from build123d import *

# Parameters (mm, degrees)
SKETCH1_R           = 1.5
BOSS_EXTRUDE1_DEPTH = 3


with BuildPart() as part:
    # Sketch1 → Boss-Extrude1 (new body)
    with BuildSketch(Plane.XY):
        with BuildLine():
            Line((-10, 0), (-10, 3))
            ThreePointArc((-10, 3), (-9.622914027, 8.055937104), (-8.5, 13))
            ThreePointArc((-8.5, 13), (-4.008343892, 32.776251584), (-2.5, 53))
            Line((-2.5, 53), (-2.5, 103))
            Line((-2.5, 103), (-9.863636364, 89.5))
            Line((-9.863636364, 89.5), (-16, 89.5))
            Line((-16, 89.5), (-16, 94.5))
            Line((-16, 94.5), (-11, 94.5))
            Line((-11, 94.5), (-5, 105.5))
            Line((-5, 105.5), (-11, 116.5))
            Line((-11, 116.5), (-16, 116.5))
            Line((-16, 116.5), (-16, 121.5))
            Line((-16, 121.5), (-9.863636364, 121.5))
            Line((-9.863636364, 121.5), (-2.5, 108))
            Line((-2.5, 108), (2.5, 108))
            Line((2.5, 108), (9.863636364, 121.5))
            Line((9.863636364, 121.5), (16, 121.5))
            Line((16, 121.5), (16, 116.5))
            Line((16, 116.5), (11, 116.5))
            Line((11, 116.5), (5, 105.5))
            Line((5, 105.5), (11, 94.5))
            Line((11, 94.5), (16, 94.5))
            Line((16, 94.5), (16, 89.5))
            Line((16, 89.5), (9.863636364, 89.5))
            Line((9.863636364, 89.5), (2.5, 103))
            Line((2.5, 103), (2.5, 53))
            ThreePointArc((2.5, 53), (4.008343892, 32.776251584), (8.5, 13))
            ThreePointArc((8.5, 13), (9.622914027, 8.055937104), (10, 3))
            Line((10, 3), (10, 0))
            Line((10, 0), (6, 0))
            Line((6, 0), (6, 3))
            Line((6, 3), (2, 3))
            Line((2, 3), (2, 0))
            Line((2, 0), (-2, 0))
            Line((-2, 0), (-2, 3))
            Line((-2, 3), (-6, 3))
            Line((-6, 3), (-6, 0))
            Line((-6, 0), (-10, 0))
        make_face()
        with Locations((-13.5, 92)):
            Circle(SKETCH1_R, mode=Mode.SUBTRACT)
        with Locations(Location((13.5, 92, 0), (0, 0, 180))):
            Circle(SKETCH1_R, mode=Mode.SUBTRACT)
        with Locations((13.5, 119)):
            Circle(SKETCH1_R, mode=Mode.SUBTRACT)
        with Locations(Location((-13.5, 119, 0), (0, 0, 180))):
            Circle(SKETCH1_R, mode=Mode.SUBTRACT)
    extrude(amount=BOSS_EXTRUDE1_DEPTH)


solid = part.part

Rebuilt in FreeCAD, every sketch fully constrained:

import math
import FreeCAD as App
import Part
import Sketcher
from FreeCAD import Vector
Q = App.Units.Quantity

doc = App.newDocument("Part")
params = doc.addObject("Spreadsheet::Sheet", "Params")
for row, (alias, value) in enumerate([
    ("sketch1_diameter", "3 mm"),
    ("sketch1_width", "4 mm"),
    ("sketch1_width2", "5 mm"),
    ("sketch1_height", "3 mm"),
    ("sketch1_height2", "50 mm"),
    ("pad1_length", "3 mm"),
], start=1):
    params.set(f"A{row}", alias)
    params.set(f"B{row}", "=" + value)
    params.setAlias(f"B{row}", alias)

body = doc.addObject("PartDesign::Body", "Body")

sketch1 = doc.addObject("Sketcher::SketchObject", "Sketch")
body.addObject(sketch1)
sketch1.AttachmentSupport = (doc.XY_Plane, [""])
sketch1.MapMode = "FlatFace"
sketch1.addGeometry([
    Part.LineSegment(Vector(-10, 3, 0), Vector(-10, 0, 0)),
    Part.LineSegment(Vector(-10, 0, 0), Vector(-6, 0, 0)),
    Part.LineSegment(Vector(-6, 0, 0), Vector(-6, 3, 0)),
    Part.LineSegment(Vector(-6, 3, 0), Vector(-2, 3, 0)),
    Part.LineSegment(Vector(-2, 3, 0), Vector(-2, 0, 0)),
    Part.LineSegment(Vector(-2, 0, 0), Vector(2, 0, 0)),
    Part.LineSegment(Vector(2, 0, 0), Vector(2, 3, 0)),
    Part.LineSegment(Vector(2, 3, 0), Vector(6, 3, 0)),
    Part.LineSegment(Vector(6, 3, 0), Vector(6, 0, 0)),
    Part.LineSegment(Vector(6, 0, 0), Vector(10, 0, 0)),
    Part.LineSegment(Vector(10, 0, 0), Vector(10, 3, 0)),
    Part.ArcOfCircle(Part.Circle(Vector(-24.083333, 3, 0), Vector(0, 0, 1), 34.083333), math.radians(0), math.radians(17.061531)),
    Part.ArcOfCircle(Part.Circle(Vector(138.833333, 53, 0), Vector(0, 0, 1), 136.333333), math.radians(180), math.radians(197.061531)),
    Part.LineSegment(Vector(2.5, 53, 0), Vector(2.5, 103, 0)),
    Part.LineSegment(Vector(2.5, 103, 0), Vector(9.863636, 89.5, 0)),
    Part.LineSegment(Vector(9.863636, 89.5, 0), Vector(16, 89.5, 0)),
    Part.LineSegment(Vector(16, 89.5, 0), Vector(16, 94.5, 0)),
    Part.LineSegment(Vector(16, 94.5, 0), Vector(11, 94.5, 0)),
    Part.LineSegment(Vector(11, 94.5, 0), Vector(5, 105.5, 0)),
    Part.LineSegment(Vector(5, 105.5, 0), Vector(11, 116.5, 0)),
    Part.LineSegment(Vector(11, 116.5, 0), Vector(16, 116.5, 0)),
    Part.LineSegment(Vector(16, 116.5, 0), Vector(16, 121.5, 0)),
    Part.LineSegment(Vector(16, 121.5, 0), Vector(9.863636, 121.5, 0)),
    Part.LineSegment(Vector(9.863636, 121.5, 0), Vector(2.5, 108, 0)),
    Part.LineSegment(Vector(2.5, 108, 0), Vector(-2.5, 108, 0)),
    Part.LineSegment(Vector(-2.5, 108, 0), Vector(-9.863636, 121.5, 0)),
    Part.LineSegment(Vector(-9.863636, 121.5, 0), Vector(-16, 121.5, 0)),
    Part.LineSegment(Vector(-16, 121.5, 0), Vector(-16, 116.5, 0)),
    Part.LineSegment(Vector(-16, 116.5, 0), Vector(-11, 116.5, 0)),
    Part.LineSegment(Vector(-11, 116.5, 0), Vector(-5, 105.5, 0)),
    Part.LineSegment(Vector(-5, 105.5, 0), Vector(-11, 94.5, 0)),
    Part.LineSegment(Vector(-11, 94.5, 0), Vector(-16, 94.5, 0)),
    Part.LineSegment(Vector(-16, 94.5, 0), Vector(-16, 89.5, 0)),
    Part.LineSegment(Vector(-16, 89.5, 0), Vector(-9.863636, 89.5, 0)),
    Part.LineSegment(Vector(-9.863636, 89.5, 0), Vector(-2.5, 103, 0)),
    Part.LineSegment(Vector(-2.5, 103, 0), Vector(-2.5, 53, 0)),
    Part.ArcOfCircle(Part.Circle(Vector(-138.833333, 53, 0), Vector(0, 0, 1), 136.333333), math.radians(-17.061531), math.radians(0)),
    Part.ArcOfCircle(Part.Circle(Vector(24.083333, 3, 0), Vector(0, 0, 1), 34.083333), math.radians(162.938469), math.radians(180)),
    Part.Circle(Vector(13.5, 92, 0), Vector(0, 0, 1), 1.5),
    Part.Circle(Vector(-13.5, 92, 0), Vector(0, 0, 1), 1.5),
    Part.Circle(Vector(13.5, 119, 0), Vector(0, 0, 1), 1.5),
    Part.Circle(Vector(-13.5, 119, 0), Vector(0, 0, 1), 1.5),
], False)
sketch1.addConstraint([
    Sketcher.Constraint("Coincident", 0, 2, 1, 1),
    Sketcher.Constraint("Coincident", 1, 2, 2, 1),
    Sketcher.Constraint("Coincident", 2, 2, 3, 1),
    Sketcher.Constraint("Coincident", 3, 2, 4, 1),
    Sketcher.Constraint("Coincident", 4, 2, 5, 1),
    Sketcher.Constraint("Coincident", 5, 2, 6, 1),
    Sketcher.Constraint("Coincident", 6, 2, 7, 1),
    Sketcher.Constraint("Coincident", 7, 2, 8, 1),
    Sketcher.Constraint("Coincident", 8, 2, 9, 1),
    Sketcher.Constraint("Coincident", 9, 2, 10, 1),
    Sketcher.Constraint("Tangent", 10, 2, 11, 1),
    Sketcher.Constraint("Tangent", 11, 2, 12, 2),
    Sketcher.Constraint("Tangent", 12, 1, 13, 1),
    Sketcher.Constraint("Coincident", 13, 2, 14, 1),
    Sketcher.Constraint("Coincident", 14, 2, 15, 1),
    Sketcher.Constraint("Coincident", 15, 2, 16, 1),
    Sketcher.Constraint("Coincident", 16, 2, 17, 1),
    Sketcher.Constraint("Coincident", 17, 2, 18, 1),
    Sketcher.Constraint("Coincident", 18, 2, 19, 1),
    Sketcher.Constraint("Coincident", 19, 2, 20, 1),
    Sketcher.Constraint("Coincident", 20, 2, 21, 1),
    Sketcher.Constraint("Coincident", 21, 2, 22, 1),
    Sketcher.Constraint("Coincident", 22, 2, 23, 1),
    Sketcher.Constraint("Coincident", 23, 2, 24, 1),
    Sketcher.Constraint("Coincident", 24, 2, 25, 1),
    Sketcher.Constraint("Coincident", 25, 2, 26, 1),
    Sketcher.Constraint("Coincident", 26, 2, 27, 1),
    Sketcher.Constraint("Coincident", 27, 2, 28, 1),
    Sketcher.Constraint("Coincident", 28, 2, 29, 1),
    Sketcher.Constraint("Coincident", 29, 2, 30, 1),
    Sketcher.Constraint("Coincident", 30, 2, 31, 1),
    Sketcher.Constraint("Coincident", 31, 2, 32, 1),
    Sketcher.Constraint("Coincident", 32, 2, 33, 1),
    Sketcher.Constraint("Coincident", 33, 2, 34, 1),
    Sketcher.Constraint("Coincident", 34, 2, 35, 1),
    Sketcher.Constraint("Tangent", 35, 2, 36, 2),
    Sketcher.Constraint("Tangent", 36, 1, 37, 1),
    Sketcher.Constraint("Tangent", 37, 2, 0, 1),
    Sketcher.Constraint("Vertical", 0),
    Sketcher.Constraint("Horizontal", 1),
    Sketcher.Constraint("Vertical", 2),
    Sketcher.Constraint("Horizontal", 3),
    Sketcher.Constraint("Vertical", 4),
    Sketcher.Constraint("Horizontal", 5),
    Sketcher.Constraint("Vertical", 6),
    Sketcher.Constraint("Horizontal", 7),
    Sketcher.Constraint("Vertical", 8),
    Sketcher.Constraint("Horizontal", 9),
    Sketcher.Constraint("Vertical", 10),
    Sketcher.Constraint("Vertical", 13),
    Sketcher.Constraint("Horizontal", 15),
    Sketcher.Constraint("Vertical", 16),
    Sketcher.Constraint("Horizontal", 17),
    Sketcher.Constraint("Horizontal", 20),
    Sketcher.Constraint("Vertical", 21),
    Sketcher.Constraint("Horizontal", 22),
    Sketcher.Constraint("Horizontal", 24),
    Sketcher.Constraint("Horizontal", 26),
    Sketcher.Constraint("Vertical", 27),
    Sketcher.Constraint("Horizontal", 28),
    Sketcher.Constraint("Horizontal", 31),
    Sketcher.Constraint("Vertical", 32),
    Sketcher.Constraint("Horizontal", 33),
    Sketcher.Constraint("Vertical", 35),
    Sketcher.Constraint("Equal", 12, 36),
    Sketcher.Constraint("Equal", 11, 37),
    Sketcher.Constraint("Equal", 38, 39),
    Sketcher.Constraint("Equal", 39, 40),
    Sketcher.Constraint("Equal", 40, 41),
    Sketcher.Constraint("Symmetric", 4, 2, 5, 2, -1, 1),
    Sketcher.Constraint("Symmetric", 1, 2, 8, 2, -1, 1),
    Sketcher.Constraint("Symmetric", 12, 3, 36, 3, -2),
    Sketcher.Constraint("Symmetric", 38, 3, 39, 3, -2),
    Sketcher.Constraint("Symmetric", 40, 3, 41, 3, -2),
    Sketcher.Constraint("Symmetric", 0, 2, 9, 2, -2),
    Sketcher.Constraint("Symmetric", 22, 2, 25, 2, -2),
    Sketcher.Constraint("Symmetric", 20, 2, 27, 2, -2),
    Sketcher.Constraint("Symmetric", 18, 2, 29, 2, -2),
    Sketcher.Constraint("Symmetric", 17, 2, 30, 2, -2),
    Sketcher.Constraint("Symmetric", 15, 2, 32, 2, -2),
    Sketcher.Constraint("Parallel", 14, 18),
    Sketcher.Constraint("Parallel", 19, 23),
    Sketcher.Constraint("Parallel", 18, 25),
    Sketcher.Constraint("Parallel", 25, 29),
    Sketcher.Constraint("Parallel", 23, 30),
    Sketcher.Constraint("Parallel", 30, 34),
    Sketcher.Constraint("Horizontal", 37, 3, 2, 2),
    Sketcher.Constraint("Horizontal", 3, 2, 6, 2),
    Sketcher.Constraint("Horizontal", 13, 2, 34, 2),
    Sketcher.Constraint("Vertical", 38, 3, 40, 3),
    Sketcher.Constraint("Vertical", 17, 2, 19, 2),
    Sketcher.Constraint("Vertical", 16, 2, 20, 2),
    Sketcher.Constraint("Vertical", 14, 2, 22, 2),
    Sketcher.Constraint("Vertical", 13, 2, 23, 2),
    Sketcher.Constraint("Equal", 1, 3),
    Sketcher.Constraint("Equal", 3, 5),
    Sketcher.Constraint("Equal", 20, 24),
    Sketcher.Constraint("Equal", 31, 16),
    Sketcher.Constraint("Equal", 16, 21),
    Sketcher.Constraint("Diameter", 38, Q("3 mm")),
    Sketcher.Constraint("DistanceX", 1, 1, 1, 2, Q("4 mm")),
    Sketcher.Constraint("DistanceX", 17, 2, 17, 1, Q("5 mm")),
    Sketcher.Constraint("DistanceY", 0, 2, 0, 1, Q("3 mm")),
    Sketcher.Constraint("DistanceY", 13, 1, 13, 2, Q("50 mm")),
    Sketcher.Constraint("DistanceY", -1, 1, 12, 3, Q("53 mm")),
    Sketcher.Constraint("DistanceY", -1, 1, 38, 3, Q("92 mm")),
    Sketcher.Constraint("DistanceY", -1, 1, 40, 3, Q("119 mm")),
    Sketcher.Constraint("DistanceY", -1, 1, 11, 2, Q("13 mm")),
    Sketcher.Constraint("DistanceX", -1, 1, 15, 2, Q("16 mm")),
    Sketcher.Constraint("DistanceX", -1, 1, 18, 2, Q("5 mm")),
    Sketcher.Constraint("DistanceY", -1, 1, 23, 2, Q("108 mm")),
    Sketcher.Constraint("DistanceX", 39, 3, 38, 3, Q("27 mm")),
    Sketcher.Constraint("DistanceY", 17, 2, 18, 2, Q("11 mm")),
])
sketch1.setExpression("Constraints[99]", "Params.sketch1_diameter")
sketch1.setExpression("Constraints[100]", "Params.sketch1_width")
sketch1.setExpression("Constraints[101]", "Params.sketch1_width2")
sketch1.setExpression("Constraints[102]", "Params.sketch1_height")
sketch1.setExpression("Constraints[103]", "Params.sketch1_height2")
pad1 = doc.addObject("PartDesign::Pad", "Pad")
body.addObject(pad1)
pad1.Profile = sketch1
pad1.setExpression("Length", "Params.pad1_length")

doc.recompute()
